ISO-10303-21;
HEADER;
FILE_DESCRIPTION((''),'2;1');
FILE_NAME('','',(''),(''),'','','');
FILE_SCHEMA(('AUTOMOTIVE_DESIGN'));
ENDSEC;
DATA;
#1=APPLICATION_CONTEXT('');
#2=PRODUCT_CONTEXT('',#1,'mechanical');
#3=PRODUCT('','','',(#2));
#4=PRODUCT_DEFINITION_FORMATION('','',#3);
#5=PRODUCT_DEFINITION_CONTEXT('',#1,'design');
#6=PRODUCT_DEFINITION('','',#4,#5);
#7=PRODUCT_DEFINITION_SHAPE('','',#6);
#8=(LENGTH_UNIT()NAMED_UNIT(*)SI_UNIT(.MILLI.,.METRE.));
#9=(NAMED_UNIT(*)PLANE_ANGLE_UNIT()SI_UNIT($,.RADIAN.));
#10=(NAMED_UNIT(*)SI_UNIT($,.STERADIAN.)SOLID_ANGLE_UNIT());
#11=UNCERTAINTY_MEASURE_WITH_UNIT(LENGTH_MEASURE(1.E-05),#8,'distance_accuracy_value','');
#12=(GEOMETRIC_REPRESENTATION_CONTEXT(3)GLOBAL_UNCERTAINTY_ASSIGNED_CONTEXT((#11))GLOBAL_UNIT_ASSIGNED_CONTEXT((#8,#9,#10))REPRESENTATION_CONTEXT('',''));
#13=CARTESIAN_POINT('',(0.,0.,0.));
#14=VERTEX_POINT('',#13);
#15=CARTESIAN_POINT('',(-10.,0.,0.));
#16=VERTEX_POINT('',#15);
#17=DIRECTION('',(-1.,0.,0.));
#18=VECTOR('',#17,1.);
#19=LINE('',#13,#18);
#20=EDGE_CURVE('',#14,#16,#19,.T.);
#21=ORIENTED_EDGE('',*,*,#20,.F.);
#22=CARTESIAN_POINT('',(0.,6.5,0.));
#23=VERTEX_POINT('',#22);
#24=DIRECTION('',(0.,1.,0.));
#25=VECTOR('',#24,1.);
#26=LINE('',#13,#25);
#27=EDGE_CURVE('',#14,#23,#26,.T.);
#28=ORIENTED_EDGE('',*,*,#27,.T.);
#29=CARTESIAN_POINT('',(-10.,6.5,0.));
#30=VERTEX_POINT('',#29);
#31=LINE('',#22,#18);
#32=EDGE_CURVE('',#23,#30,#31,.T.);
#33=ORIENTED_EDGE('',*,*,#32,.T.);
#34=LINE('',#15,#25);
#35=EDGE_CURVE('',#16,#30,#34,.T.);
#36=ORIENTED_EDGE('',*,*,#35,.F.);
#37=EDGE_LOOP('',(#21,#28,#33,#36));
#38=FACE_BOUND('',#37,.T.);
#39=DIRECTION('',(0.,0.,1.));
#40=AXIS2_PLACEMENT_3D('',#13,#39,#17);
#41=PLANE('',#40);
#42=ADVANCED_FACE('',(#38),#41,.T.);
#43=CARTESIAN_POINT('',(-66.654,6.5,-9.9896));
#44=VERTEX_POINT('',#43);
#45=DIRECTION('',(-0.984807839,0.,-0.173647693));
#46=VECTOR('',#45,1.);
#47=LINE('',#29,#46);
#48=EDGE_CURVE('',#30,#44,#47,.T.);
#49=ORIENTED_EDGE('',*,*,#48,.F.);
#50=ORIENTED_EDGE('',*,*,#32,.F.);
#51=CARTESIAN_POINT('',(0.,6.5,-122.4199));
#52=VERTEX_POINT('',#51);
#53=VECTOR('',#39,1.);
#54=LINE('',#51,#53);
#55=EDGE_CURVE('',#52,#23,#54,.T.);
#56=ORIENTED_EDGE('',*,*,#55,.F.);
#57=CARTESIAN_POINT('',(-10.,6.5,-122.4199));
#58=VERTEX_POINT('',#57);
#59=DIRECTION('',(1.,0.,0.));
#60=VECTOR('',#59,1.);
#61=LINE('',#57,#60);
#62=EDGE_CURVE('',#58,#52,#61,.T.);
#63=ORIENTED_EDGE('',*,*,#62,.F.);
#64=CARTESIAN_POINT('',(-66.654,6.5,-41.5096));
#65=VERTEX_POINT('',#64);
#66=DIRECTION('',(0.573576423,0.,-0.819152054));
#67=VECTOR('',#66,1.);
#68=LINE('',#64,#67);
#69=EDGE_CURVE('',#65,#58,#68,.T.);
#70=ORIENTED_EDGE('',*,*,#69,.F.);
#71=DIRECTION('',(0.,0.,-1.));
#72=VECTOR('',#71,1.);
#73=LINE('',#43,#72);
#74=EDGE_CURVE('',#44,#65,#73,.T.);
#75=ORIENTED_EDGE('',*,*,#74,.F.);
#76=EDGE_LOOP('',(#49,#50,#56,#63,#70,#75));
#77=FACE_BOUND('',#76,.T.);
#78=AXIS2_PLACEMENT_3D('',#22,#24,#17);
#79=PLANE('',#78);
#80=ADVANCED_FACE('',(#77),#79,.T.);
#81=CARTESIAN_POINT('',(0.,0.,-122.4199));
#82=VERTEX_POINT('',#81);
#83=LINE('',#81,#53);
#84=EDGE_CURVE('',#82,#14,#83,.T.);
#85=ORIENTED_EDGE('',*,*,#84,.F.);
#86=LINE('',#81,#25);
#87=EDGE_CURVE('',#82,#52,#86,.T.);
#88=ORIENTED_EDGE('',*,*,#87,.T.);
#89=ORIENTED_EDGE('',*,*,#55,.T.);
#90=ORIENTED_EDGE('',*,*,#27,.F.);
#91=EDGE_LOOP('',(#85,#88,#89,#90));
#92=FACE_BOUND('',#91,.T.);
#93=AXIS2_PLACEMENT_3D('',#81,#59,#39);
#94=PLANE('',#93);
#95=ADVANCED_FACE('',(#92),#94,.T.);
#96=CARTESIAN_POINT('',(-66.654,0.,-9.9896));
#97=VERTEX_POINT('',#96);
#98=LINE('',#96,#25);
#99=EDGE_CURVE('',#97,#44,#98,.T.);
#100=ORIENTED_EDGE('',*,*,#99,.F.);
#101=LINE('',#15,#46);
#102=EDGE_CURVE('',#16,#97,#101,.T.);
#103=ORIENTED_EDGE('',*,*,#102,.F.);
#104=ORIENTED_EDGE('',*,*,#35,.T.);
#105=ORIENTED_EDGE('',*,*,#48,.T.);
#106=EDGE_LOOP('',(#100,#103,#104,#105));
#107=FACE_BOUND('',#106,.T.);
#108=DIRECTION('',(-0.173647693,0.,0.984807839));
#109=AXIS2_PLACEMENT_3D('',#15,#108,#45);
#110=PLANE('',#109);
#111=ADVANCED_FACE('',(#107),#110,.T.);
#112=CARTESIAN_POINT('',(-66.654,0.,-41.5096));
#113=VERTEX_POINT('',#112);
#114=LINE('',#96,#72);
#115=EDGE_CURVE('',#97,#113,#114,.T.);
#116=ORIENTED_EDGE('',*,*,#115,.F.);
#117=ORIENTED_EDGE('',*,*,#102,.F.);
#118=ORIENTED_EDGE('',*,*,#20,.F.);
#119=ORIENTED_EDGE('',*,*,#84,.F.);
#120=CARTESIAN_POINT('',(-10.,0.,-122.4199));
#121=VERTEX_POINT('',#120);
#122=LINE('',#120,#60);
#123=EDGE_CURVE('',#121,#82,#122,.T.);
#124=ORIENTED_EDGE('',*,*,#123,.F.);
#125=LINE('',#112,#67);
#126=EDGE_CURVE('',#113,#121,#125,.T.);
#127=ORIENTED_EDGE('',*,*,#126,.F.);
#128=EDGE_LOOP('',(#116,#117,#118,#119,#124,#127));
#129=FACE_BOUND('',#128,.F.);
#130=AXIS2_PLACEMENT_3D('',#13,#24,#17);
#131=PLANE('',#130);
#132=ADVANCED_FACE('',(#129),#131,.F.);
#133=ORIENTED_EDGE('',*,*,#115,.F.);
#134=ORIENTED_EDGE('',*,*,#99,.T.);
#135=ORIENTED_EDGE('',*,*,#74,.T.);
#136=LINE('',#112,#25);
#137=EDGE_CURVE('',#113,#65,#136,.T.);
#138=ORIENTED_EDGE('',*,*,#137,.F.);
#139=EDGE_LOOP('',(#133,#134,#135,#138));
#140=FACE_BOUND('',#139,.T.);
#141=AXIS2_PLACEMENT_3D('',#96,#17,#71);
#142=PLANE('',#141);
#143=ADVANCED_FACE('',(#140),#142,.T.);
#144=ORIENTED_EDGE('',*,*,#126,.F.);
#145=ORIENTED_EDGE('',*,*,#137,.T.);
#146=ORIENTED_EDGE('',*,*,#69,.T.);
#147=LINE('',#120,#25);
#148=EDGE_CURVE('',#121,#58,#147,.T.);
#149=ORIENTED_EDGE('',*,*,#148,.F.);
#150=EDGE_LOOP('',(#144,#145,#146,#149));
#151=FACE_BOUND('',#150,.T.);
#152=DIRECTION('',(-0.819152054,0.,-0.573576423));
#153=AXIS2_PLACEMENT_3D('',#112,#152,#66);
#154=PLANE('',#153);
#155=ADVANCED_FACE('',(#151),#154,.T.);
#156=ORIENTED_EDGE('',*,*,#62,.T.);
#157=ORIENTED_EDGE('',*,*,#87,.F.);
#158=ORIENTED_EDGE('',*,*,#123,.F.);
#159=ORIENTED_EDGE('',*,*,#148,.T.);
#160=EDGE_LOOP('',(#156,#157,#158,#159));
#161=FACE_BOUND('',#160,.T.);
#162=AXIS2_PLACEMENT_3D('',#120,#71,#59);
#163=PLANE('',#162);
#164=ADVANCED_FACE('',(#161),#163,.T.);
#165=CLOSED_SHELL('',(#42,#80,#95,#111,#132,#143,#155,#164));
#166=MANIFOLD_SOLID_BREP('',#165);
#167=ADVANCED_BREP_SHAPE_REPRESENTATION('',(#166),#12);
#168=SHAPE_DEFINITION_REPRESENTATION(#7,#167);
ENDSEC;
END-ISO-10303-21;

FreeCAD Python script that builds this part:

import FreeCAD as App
import Part
import Sketcher
from FreeCAD import Vector
Q = App.Units.Quantity

doc = App.newDocument("Part")
body = doc.addObject("PartDesign::Body", "Body")

sketch1 = doc.addObject("Sketcher::SketchObject", "Sketch")
body.addObject(sketch1)
sketch1.AttachmentSupport = (doc.XZ_Plane, [""])
sketch1.MapMode = "FlatFace"
sketch1.addGeometry([
    Part.LineSegment(Vector(-10, 0, 0), Vector(0, 0, 0)),
    Part.LineSegment(Vector(0, 0, 0), Vector(0, -122, 0)),
    Part.LineSegment(Vector(0, -122, 0), Vector(-10, -122, 0)),
    Part.LineSegment(Vector(-10, -122, 0), Vector(-67, -42, 0)),
    Part.LineSegment(Vector(-67, -42, 0), Vector(-67, -10, 0)),
    Part.LineSegment(Vector(-67, -10, 0), Vector(-10, 0, 0)),
], False)
sketch1.addConstraint([
    Sketcher.Constraint("Coincident", 0, 2, 1, 1),
    Sketcher.Constraint("Coincident", 1, 2, 2, 1),
    Sketcher.Constraint("Coincident", 2, 2, 3, 1),
    Sketcher.Constraint("Coincident", 3, 2, 4, 1),
    Sketcher.Constraint("Coincident", 4, 2, 5, 1),
    Sketcher.Constraint("Coincident", 5, 2, 0, 1),
    Sketcher.Constraint("Horizontal", 0),
    Sketcher.Constraint("Vertical", 1),
    Sketcher.Constraint("Horizontal", 2),
    Sketcher.Constraint("Vertical", 4),
    Sketcher.Constraint("Coincident", 0, 2, -1, 1),
    Sketcher.Constraint("Vertical", 2, 2, 5, 2),
    Sketcher.Constraint("DistanceX", 0, 1, 0, 2, 10.0),
    Sketcher.Constraint("Angle", 5, Q("10 deg")),
    Sketcher.Constraint("DistanceY", 4, 1, 4, 2, 31.52),
    Sketcher.Constraint("Angle", 3, Q("125 deg")),
    Sketcher.Constraint("DistanceX", 3, 2, -1, 1, 66.654),
])
pad1 = doc.addObject("PartDesign::Pad", "Pad")
body.addObject(pad1)
pad1.Profile = sketch1
pad1.Length = 6.5
pad1.Reversed = True

doc.recompute()
